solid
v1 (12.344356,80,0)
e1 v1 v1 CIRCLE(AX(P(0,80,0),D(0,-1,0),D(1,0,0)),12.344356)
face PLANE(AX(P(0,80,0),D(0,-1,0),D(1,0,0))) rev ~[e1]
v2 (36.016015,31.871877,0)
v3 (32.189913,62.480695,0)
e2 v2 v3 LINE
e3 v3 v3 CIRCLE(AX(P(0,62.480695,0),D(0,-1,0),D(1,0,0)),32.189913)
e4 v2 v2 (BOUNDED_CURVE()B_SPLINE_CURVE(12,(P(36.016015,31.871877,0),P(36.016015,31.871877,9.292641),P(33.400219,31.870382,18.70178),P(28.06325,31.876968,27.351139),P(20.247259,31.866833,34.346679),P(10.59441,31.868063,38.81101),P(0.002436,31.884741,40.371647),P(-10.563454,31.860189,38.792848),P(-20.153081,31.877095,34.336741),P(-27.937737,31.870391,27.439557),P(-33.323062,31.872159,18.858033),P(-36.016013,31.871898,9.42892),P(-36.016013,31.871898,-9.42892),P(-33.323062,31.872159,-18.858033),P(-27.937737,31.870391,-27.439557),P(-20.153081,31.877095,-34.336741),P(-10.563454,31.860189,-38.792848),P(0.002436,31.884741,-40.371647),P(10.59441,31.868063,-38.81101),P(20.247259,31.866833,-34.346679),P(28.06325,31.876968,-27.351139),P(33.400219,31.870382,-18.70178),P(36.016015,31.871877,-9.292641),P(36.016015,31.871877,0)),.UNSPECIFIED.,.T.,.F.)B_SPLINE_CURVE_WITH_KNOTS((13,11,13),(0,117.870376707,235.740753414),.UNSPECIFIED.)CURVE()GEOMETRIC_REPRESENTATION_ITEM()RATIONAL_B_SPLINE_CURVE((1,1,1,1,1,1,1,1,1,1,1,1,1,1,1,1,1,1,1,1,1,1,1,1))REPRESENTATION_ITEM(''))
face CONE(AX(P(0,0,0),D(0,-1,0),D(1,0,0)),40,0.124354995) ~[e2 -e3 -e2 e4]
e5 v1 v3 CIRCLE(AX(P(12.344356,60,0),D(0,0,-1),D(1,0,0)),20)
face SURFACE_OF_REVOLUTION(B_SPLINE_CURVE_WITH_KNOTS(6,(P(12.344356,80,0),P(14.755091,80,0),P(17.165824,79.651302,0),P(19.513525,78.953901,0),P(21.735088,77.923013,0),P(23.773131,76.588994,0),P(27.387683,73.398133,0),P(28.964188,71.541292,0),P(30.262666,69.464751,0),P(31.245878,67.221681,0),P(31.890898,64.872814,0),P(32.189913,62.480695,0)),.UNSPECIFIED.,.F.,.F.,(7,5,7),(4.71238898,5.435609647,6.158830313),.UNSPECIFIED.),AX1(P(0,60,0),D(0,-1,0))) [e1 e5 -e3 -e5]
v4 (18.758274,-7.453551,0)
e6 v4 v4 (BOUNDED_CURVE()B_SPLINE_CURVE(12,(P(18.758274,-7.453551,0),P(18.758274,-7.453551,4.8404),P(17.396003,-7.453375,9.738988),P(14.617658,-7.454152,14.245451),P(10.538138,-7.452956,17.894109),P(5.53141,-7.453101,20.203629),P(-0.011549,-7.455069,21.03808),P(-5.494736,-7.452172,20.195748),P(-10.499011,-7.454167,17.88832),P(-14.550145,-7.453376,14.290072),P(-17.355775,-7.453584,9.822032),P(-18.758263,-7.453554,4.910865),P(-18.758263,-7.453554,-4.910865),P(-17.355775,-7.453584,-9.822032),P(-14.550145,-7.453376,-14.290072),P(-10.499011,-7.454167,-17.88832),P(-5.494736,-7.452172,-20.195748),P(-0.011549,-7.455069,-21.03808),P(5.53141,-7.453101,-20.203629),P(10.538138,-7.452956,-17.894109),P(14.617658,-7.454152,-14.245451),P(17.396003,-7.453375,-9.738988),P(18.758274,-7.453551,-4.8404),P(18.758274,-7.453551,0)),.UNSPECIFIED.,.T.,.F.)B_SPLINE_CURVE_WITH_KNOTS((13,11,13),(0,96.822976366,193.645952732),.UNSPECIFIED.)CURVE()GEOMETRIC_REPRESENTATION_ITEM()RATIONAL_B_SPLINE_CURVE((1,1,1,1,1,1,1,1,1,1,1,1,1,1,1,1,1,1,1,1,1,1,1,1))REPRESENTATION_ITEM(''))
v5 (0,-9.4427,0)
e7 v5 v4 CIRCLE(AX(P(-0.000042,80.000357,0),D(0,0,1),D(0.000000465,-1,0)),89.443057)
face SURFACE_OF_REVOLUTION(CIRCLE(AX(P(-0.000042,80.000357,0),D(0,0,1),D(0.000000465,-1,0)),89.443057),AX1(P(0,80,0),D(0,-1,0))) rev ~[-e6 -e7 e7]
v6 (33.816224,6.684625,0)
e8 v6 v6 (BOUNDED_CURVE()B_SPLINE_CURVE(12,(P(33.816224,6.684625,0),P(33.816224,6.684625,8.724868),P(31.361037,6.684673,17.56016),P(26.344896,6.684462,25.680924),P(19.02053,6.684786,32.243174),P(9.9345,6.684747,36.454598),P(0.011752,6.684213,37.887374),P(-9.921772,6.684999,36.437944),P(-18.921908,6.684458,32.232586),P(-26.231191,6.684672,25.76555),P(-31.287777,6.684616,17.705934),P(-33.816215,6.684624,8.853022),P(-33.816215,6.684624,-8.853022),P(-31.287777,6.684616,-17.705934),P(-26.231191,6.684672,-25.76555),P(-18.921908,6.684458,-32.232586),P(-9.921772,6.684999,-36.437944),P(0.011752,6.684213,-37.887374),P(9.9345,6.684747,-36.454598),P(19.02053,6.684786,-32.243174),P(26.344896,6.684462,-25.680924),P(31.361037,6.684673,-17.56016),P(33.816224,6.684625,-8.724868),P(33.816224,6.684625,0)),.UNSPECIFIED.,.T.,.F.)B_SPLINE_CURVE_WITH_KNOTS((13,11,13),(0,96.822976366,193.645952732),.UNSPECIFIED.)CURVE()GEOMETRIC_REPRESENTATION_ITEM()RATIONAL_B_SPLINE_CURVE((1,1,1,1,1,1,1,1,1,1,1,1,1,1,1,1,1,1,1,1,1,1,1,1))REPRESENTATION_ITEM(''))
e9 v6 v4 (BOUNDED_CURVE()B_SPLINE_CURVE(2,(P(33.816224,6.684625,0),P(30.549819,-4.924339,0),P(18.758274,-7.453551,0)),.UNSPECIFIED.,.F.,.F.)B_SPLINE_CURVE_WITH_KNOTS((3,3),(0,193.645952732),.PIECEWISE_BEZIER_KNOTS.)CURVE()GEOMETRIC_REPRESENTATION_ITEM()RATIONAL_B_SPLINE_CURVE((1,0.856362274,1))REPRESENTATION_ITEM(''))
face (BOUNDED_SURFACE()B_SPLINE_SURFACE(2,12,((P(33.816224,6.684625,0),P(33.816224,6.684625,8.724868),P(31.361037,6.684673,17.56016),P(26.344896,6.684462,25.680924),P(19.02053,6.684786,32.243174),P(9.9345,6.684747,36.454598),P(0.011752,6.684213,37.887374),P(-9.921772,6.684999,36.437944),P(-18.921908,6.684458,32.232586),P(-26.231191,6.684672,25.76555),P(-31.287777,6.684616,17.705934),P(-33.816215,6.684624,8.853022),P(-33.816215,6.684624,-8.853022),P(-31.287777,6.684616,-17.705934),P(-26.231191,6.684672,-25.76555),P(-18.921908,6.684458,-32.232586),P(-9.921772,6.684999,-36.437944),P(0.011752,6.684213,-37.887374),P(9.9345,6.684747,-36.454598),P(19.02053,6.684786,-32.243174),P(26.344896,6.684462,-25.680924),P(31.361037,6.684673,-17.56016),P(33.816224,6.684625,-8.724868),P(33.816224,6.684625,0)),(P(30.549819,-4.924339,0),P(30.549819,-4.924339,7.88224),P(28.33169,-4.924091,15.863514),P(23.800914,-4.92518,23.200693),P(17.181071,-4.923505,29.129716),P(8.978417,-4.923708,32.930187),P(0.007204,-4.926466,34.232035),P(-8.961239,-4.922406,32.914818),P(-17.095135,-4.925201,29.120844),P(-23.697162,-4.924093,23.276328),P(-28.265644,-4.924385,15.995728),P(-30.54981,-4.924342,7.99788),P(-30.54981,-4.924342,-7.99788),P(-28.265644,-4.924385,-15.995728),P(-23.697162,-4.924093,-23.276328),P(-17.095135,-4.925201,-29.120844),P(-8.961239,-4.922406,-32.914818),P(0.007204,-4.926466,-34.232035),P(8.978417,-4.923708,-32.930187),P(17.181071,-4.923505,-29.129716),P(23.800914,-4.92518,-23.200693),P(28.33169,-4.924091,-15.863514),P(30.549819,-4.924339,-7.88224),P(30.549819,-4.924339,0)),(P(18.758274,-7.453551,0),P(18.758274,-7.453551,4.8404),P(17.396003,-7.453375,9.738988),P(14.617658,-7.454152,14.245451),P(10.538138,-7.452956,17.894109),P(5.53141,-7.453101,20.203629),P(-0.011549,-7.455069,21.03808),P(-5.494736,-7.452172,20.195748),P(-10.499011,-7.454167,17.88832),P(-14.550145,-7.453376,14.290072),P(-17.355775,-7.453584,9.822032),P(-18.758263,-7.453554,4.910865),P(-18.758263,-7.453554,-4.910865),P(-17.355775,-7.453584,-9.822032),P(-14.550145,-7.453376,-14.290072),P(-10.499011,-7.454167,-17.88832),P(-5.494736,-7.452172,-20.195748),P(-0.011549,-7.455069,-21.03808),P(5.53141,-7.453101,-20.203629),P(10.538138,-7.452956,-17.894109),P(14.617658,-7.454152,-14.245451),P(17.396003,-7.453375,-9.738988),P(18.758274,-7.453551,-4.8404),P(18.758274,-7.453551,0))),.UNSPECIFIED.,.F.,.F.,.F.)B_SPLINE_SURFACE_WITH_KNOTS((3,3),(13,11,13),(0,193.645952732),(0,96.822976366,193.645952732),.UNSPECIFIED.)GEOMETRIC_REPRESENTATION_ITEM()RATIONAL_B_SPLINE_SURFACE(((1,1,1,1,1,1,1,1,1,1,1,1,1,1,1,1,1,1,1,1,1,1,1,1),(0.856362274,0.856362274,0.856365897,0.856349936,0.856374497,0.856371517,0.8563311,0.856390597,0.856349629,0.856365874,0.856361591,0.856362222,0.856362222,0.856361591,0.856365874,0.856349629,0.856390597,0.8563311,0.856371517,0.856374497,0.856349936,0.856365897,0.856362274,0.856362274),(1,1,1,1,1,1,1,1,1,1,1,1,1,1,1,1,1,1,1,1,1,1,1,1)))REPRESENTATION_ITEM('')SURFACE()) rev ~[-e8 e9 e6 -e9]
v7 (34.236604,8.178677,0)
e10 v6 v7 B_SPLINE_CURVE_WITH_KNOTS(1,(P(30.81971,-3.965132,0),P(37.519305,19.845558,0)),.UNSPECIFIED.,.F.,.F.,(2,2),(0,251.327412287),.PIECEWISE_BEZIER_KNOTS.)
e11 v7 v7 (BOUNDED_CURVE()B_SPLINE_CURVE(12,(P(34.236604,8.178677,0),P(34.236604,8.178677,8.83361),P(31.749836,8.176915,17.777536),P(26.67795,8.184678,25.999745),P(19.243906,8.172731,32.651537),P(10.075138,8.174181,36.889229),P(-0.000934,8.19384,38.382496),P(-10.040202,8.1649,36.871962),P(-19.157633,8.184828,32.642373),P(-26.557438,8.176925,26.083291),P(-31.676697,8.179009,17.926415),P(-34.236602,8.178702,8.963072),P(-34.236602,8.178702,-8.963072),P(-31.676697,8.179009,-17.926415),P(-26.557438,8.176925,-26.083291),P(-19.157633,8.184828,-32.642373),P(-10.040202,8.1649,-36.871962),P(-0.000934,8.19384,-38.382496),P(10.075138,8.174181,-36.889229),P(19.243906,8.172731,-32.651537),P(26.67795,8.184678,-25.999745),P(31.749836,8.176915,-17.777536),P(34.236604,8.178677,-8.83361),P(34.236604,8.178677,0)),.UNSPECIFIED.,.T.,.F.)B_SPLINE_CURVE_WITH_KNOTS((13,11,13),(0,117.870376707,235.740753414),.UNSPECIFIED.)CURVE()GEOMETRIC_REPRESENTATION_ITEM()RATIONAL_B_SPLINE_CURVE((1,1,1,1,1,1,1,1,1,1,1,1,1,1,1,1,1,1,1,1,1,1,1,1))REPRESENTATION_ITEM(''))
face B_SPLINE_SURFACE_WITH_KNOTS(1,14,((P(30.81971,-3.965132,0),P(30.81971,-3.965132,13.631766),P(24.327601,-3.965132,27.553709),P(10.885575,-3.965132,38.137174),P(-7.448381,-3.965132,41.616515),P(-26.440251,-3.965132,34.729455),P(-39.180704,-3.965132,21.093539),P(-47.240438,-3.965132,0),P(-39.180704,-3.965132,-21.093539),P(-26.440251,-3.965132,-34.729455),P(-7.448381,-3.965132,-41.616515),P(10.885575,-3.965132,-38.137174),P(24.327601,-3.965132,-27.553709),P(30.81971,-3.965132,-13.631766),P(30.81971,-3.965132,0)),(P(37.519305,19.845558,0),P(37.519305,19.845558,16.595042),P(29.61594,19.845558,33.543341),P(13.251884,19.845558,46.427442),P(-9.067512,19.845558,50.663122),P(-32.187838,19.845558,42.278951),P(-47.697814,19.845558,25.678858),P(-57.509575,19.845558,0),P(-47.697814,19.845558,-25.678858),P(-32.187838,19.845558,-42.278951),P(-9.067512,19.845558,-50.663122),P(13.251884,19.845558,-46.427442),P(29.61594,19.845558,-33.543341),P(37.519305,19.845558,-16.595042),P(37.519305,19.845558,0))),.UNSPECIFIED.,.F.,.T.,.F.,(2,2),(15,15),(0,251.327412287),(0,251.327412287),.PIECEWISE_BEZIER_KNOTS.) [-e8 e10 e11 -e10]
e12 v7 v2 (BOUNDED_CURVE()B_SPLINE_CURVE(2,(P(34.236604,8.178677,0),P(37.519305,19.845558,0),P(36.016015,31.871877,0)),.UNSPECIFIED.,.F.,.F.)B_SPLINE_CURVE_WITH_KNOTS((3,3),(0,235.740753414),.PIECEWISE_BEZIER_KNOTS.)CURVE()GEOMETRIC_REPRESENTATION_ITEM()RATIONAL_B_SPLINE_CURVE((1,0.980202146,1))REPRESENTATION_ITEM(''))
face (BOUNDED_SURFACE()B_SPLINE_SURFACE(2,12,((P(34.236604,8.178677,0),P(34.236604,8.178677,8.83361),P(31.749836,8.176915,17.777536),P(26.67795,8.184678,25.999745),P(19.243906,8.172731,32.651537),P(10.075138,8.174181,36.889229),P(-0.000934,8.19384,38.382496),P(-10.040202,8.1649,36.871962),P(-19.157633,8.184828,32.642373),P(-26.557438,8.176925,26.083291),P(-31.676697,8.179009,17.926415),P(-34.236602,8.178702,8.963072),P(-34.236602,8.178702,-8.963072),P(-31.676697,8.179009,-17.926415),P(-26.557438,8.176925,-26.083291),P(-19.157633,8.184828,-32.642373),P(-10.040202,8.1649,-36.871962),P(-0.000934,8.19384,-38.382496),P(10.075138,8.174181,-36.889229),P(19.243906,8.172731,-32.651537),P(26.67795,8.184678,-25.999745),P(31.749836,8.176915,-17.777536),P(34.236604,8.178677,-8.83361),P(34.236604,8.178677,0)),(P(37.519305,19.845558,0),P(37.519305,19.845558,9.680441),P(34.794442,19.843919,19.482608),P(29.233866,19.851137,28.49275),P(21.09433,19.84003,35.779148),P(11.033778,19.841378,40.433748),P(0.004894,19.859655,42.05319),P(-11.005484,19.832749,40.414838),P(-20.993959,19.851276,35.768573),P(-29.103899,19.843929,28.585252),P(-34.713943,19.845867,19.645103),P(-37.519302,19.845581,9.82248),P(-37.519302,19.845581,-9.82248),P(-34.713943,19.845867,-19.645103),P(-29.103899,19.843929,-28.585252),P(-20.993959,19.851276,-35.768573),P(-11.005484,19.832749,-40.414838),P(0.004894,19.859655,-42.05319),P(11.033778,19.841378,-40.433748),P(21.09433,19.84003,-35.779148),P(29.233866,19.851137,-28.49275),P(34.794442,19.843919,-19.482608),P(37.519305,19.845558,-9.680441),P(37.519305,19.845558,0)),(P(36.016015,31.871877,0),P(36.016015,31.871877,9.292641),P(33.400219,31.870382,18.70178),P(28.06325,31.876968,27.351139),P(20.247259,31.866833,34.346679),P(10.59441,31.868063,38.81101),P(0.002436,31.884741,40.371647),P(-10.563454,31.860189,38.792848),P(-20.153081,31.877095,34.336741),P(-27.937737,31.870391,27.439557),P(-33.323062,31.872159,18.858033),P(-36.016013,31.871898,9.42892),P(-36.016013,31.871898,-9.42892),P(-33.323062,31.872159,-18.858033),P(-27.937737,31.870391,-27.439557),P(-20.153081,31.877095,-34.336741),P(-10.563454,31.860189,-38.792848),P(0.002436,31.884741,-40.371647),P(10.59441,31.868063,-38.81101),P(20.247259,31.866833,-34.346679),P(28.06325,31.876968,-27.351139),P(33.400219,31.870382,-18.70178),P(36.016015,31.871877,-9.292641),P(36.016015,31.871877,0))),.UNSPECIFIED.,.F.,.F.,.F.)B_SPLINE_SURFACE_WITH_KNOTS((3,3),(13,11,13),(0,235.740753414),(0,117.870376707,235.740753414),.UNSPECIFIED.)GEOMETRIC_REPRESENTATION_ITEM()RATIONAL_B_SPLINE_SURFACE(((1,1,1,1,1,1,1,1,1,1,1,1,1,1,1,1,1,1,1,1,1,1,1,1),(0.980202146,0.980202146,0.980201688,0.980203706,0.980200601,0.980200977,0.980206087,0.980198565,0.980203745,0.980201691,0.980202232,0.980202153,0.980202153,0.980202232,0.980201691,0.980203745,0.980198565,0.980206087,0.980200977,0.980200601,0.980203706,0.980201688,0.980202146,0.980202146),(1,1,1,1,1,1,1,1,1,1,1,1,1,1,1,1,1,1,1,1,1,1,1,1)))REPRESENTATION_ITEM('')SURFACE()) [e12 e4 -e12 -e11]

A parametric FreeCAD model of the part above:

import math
import FreeCAD as App
import Part
import Sketcher

V = App.Vector
Q = App.Units.Quantity


def edges_at(feature, points):
    """Names of the edges that pass closest to the given points."""
    edges = feature.Shape.Edges
    near = lambda p: min(range(len(edges)), key=lambda i: edges[i].distToShape(Part.Vertex(*p))[0])
    return sorted({f"Edge{near(p) + 1}" for p in points})

doc = App.newDocument("Part")
body = doc.addObject("PartDesign::Body", "Body")

sketch1 = doc.addObject("Sketcher::SketchObject", "Sketch")
body.addObject(sketch1)
sketch1.AttachmentSupport = (doc.XY_Plane, [""])
sketch1.MapMode = "FlatFace"
sketch1.addGeometry([
    Part.LineSegment(V(0, 80, 0), V(0, -9, 0)),
    Part.ArcOfCircle(Part.Circle(V(0, 80, 0), V(0, 0, 1), 89), math.radians(-90), math.radians(-63)),
    Part.LineSegment(V(40, 0, 0), V(30, 80, 0)),
    Part.LineSegment(V(30, 80, 0), V(0, 80, 0)),
], False)
sketch1.addConstraint([
    Sketcher.Constraint("Coincident", 0, 2, 1, 1),
    Sketcher.Constraint("Coincident", 1, 2, 2, 1),
    Sketcher.Constraint("Coincident", 2, 2, 3, 1),
    Sketcher.Constraint("Coincident", 3, 2, 0, 1),
    Sketcher.Constraint("Vertical", 0),
    Sketcher.Constraint("Horizontal", 3),
    Sketcher.Constraint("Coincident", 3, 2, 1, 3),
    Sketcher.Constraint("PointOnObject", 1, 3, -2),
    Sketcher.Constraint("PointOnObject", 1, 2, -1),
    Sketcher.Constraint("DistanceX", 3, 2, 3, 1, Q("30 mm")),
    Sketcher.Constraint("DistanceY", -1, 1, 1, 3, Q("80 mm")),
    Sketcher.Constraint("DistanceX", -1, 1, 1, 2, Q("40 mm")),
])
revolution = doc.addObject("PartDesign::Revolution", "Revolution")
body.addObject(revolution)
revolution.Profile = sketch1
revolution.ReferenceAxis = (sketch1, ["V_Axis"])
revolution.Angle = 360
doc.recompute()

fillet = doc.addObject("PartDesign::Fillet", "Fillet")
body.addObject(fillet)
fillet.Base = (revolution, edges_at(revolution, [(-30, 80, 0)]))
fillet.Radius = 20
doc.recompute()

chamfer = doc.addObject("PartDesign::Chamfer", "Chamfer")
body.addObject(chamfer)
chamfer.Base = (fillet, edges_at(fillet, [(-40, 0, 0)]))
chamfer.ChamferType = "Two distances"
chamfer.Size = 10
chamfer.Size2 = 20
chamfer.FlipDirection = True
doc.recompute()

fillet2 = doc.addObject("PartDesign::Fillet", "Fillet001")
body.addObject(fillet2)
fillet2.Base = (chamfer, edges_at(chamfer, [(-30.82, -3.965, 0)]))
fillet2.Radius = 20
doc.recompute()

fillet3 = doc.addObject("PartDesign::Fillet", "Fillet002")
body.addObject(fillet3)
fillet3.Base = (fillet2, edges_at(fillet2, [(-37.519, 19.846, 0)]))
fillet3.Radius = 60

doc.recompute()
